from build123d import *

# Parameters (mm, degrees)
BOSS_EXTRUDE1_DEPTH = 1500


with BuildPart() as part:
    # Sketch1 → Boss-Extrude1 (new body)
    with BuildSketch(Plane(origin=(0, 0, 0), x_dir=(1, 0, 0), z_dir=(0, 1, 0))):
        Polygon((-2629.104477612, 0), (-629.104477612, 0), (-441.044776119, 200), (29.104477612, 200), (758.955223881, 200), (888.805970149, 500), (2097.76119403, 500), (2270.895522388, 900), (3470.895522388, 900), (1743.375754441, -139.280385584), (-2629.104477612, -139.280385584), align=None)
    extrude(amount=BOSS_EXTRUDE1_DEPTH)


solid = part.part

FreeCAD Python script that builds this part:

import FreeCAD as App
import Part
import Sketcher
Q = App.Units.Quantity

doc = App.newDocument("Part")
body = doc.addObject("PartDesign::Body", "Body")

# Sketch on XZ plane
sketch1 = body.newObject("Sketcher::SketchObject", "Sketch")
sketch1.AttachmentSupport = (doc.getObject("XZ_Plane"), [""])
sketch1.MapMode = "FlatFace"
sketch1.addGeometry([
    Part.LineSegment(App.Vector(-629, 0, 0), App.Vector(-2629, 0, 0)),  # 0
    Part.LineSegment(App.Vector(-2629, 0, 0), App.Vector(-2629, 139, 0)),  # 1
    Part.LineSegment(App.Vector(-2629, 139, 0), App.Vector(1743, 139, 0)),  # 2
    Part.LineSegment(App.Vector(1743, 139, 0), App.Vector(3471, -900, 0)),  # 3
    Part.LineSegment(App.Vector(3471, -900, 0), App.Vector(2271, -900, 0)),  # 4
    Part.LineSegment(App.Vector(2271, -900, 0), App.Vector(2098, -500, 0)),  # 5
    Part.LineSegment(App.Vector(2098, -500, 0), App.Vector(889, -500, 0)),  # 6
    Part.LineSegment(App.Vector(889, -500, 0), App.Vector(759, -200, 0)),  # 7
    Part.LineSegment(App.Vector(759, -200, 0), App.Vector(-441, -200, 0)),  # 8
    Part.LineSegment(App.Vector(-441, -200, 0), App.Vector(-629, 0, 0)),  # 9
], False)
sketch1.addConstraint([
    Sketcher.Constraint("Coincident", 0, 2, 1, 1),
    Sketcher.Constraint("Coincident", 1, 2, 2, 1),
    Sketcher.Constraint("Coincident", 2, 2, 3, 1),
    Sketcher.Constraint("Coincident", 3, 2, 4, 1),
    Sketcher.Constraint("Coincident", 4, 2, 5, 1),
    Sketcher.Constraint("Coincident", 5, 2, 6, 1),
    Sketcher.Constraint("Coincident", 6, 2, 7, 1),
    Sketcher.Constraint("Coincident", 7, 2, 8, 1),
    Sketcher.Constraint("Coincident", 8, 2, 9, 1),
    Sketcher.Constraint("Coincident", 9, 2, 0, 1),
    Sketcher.Constraint("Horizontal", 0),
    Sketcher.Constraint("Vertical", 1),
    Sketcher.Constraint("Horizontal", 2),
    Sketcher.Constraint("Horizontal", 4),
    Sketcher.Constraint("Horizontal", 6),
    Sketcher.Constraint("Horizontal", 8),
    Sketcher.Constraint("PointOnObject", 0, 2, -1),
    Sketcher.Constraint("Parallel", 5, 7),
    Sketcher.Constraint("Equal", 4, 8),
    Sketcher.Constraint("DistanceX", 0, 2, 0, 1, Q("2000 mm")),
    Sketcher.Constraint("DistanceX", 4, 2, 4, 1, Q("1200 mm")),
    Sketcher.Constraint("DistanceY", 3, 2, -1, 1, Q("900 mm")),
    Sketcher.Constraint("DistanceY", 5, 2, -1, 1, Q("500 mm")),
    Sketcher.Constraint("DistanceY", 7, 2, -1, 1, Q("200 mm")),
    Sketcher.Constraint("DistanceX", 0, 2, 3, 2, Q("6100 mm")),
    Sketcher.Constraint("DistanceX", 7, 2, 4, 2, Q("1511.940299 mm")),
    Sketcher.Constraint("Distance", 7, Q("326.896339 mm")),
    Sketcher.Constraint("DistanceX", 2, 1, 2, 2, Q("4372.480232 mm")),
    Sketcher.Constraint("DistanceY", 1, 1, 1, 2, Q("139.280386 mm")),
    Sketcher.Constraint("DistanceX", -1, 1, 6, 2, Q("888.80597 mm")),
])
pad1 = body.newObject("PartDesign::Pad", "Pad")
pad1.Profile = sketch1
pad1.Length = 1500
pad1.Reversed = True

doc.recompute()
